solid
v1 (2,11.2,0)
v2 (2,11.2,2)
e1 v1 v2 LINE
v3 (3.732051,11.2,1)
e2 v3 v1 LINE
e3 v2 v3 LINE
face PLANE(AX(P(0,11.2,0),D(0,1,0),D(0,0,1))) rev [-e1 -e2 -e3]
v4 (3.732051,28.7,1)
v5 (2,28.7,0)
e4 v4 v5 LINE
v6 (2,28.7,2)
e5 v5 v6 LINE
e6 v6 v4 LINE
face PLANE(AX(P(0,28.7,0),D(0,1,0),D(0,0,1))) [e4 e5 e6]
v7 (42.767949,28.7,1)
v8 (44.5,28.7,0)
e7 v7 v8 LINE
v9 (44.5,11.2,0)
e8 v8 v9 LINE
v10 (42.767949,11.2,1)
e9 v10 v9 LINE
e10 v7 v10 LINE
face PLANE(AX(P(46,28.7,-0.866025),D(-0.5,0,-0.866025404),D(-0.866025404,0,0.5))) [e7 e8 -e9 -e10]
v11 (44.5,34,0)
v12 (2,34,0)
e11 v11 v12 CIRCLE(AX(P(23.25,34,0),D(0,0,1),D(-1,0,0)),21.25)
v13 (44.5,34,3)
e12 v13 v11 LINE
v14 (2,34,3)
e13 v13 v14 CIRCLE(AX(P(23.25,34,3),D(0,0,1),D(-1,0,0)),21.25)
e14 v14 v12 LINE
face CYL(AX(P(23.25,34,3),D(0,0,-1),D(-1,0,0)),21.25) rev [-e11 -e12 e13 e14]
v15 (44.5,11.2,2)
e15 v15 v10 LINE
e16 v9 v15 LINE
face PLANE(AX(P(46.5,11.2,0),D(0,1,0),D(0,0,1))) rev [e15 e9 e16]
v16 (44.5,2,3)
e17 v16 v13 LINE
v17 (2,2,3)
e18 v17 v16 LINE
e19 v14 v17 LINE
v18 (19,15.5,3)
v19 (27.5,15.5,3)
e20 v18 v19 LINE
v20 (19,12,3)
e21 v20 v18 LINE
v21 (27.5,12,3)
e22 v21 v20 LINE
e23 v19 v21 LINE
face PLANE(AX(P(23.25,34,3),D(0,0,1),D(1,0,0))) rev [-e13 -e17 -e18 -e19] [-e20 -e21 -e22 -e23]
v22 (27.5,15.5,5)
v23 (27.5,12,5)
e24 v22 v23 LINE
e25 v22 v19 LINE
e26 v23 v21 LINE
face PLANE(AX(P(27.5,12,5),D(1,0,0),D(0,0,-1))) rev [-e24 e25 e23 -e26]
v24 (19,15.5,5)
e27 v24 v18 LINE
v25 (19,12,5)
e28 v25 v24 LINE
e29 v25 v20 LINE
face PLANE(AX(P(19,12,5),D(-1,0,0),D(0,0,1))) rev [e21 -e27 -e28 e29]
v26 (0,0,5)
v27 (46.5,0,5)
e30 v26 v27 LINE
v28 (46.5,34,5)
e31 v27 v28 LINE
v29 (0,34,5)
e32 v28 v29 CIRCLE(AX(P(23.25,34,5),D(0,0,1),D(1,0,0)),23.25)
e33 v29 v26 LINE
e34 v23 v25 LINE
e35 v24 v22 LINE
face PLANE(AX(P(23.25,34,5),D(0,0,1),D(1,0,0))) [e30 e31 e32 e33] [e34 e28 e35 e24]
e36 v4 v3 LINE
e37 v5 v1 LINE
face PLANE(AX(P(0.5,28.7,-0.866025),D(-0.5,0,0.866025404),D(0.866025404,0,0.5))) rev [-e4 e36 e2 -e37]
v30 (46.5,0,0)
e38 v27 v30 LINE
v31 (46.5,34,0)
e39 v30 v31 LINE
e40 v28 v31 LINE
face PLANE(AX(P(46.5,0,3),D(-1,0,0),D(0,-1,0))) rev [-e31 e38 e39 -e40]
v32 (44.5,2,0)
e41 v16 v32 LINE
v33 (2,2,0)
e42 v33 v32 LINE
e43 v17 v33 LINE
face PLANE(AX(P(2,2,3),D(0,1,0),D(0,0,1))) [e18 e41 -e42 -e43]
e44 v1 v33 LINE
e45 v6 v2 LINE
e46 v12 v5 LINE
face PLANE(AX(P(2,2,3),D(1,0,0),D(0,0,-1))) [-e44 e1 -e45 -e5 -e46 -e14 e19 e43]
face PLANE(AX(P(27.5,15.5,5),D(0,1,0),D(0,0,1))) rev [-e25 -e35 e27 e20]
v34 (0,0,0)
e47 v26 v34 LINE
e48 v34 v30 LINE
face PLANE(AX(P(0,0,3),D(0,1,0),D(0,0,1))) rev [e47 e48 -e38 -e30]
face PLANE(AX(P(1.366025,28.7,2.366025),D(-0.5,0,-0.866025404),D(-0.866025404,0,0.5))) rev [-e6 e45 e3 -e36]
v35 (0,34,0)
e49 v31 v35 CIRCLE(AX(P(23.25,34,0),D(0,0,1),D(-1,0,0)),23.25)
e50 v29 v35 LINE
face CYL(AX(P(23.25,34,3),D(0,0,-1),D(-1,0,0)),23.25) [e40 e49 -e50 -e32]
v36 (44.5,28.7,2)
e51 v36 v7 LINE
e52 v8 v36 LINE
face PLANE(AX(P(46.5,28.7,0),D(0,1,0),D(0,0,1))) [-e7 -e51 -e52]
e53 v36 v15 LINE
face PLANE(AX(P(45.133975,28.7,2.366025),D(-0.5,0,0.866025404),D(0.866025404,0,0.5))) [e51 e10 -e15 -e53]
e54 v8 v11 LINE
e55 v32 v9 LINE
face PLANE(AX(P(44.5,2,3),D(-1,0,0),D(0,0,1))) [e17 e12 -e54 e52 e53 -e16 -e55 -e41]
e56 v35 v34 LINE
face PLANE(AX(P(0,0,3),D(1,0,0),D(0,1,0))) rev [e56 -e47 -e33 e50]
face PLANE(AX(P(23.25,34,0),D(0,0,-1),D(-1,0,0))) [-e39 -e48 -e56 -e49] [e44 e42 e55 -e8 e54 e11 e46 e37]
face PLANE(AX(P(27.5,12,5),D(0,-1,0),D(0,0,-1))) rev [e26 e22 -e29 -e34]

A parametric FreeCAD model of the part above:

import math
import FreeCAD as App
import Part
import Sketcher
from FreeCAD import Vector
Q = App.Units.Quantity


def add_polygon(sketch, points):
    """Adds a closed chain of lines whose ends are joined by coincident constraints."""
    first, n = sketch.GeometryCount, len(points)
    for a, b in zip(points, points[1:] + points[:1]):
        sketch.addGeometry(Part.LineSegment(App.Vector(*a, 0), App.Vector(*b, 0)), False)
    for i in range(n):
        sketch.addConstraint(Sketcher.Constraint("Coincident", first + i, 2, first + (i + 1) % n, 1))

doc = App.newDocument("Part")
body = doc.addObject("PartDesign::Body", "Body")

# Sketch on XY plane
sketch1 = body.newObject("Sketcher::SketchObject", "Sketch")
sketch1.AttachmentSupport = (doc.getObject("XY_Plane"), [""])
sketch1.MapMode = "FlatFace"
sketch1.addGeometry([
    Part.LineSegment(Vector(0, 0, 0), Vector(46, 0, 0)),  # 0
    Part.LineSegment(Vector(46, 0, 0), Vector(46, 34, 0)),  # 1
    Part.ArcOfCircle(Part.Circle(Vector(23, 34, 0), Vector(0, 0, 1), 23), math.radians(0), math.radians(180)),  # 2
    Part.LineSegment(Vector(0, 34, 0), Vector(0, 0, 0)),  # 3
    Part.LineSegment(Vector(44, 2, 0), Vector(2, 2, 0)),  # 4
    Part.LineSegment(Vector(2, 2, 0), Vector(2, 34, 0)),  # 5
    Part.ArcOfCircle(Part.Circle(Vector(23, 34, 0), Vector(0, 0, 1), 21), math.radians(0), math.radians(180)),  # 6
    Part.LineSegment(Vector(44, 34, 0), Vector(44, 2, 0)),  # 7
], False)
sketch1.addConstraint([
    Sketcher.Constraint("Coincident", 0, 2, 1, 1),
    Sketcher.Constraint("Tangent", 1, 2, 2, 1),
    Sketcher.Constraint("Tangent", 2, 2, 3, 1),
    Sketcher.Constraint("Coincident", 3, 2, 0, 1),
    Sketcher.Constraint("Coincident", 4, 2, 5, 1),
    Sketcher.Constraint("Tangent", 5, 2, 6, 2),
    Sketcher.Constraint("Tangent", 6, 1, 7, 1),
    Sketcher.Constraint("Coincident", 7, 2, 4, 1),
    Sketcher.Constraint("Horizontal", 0),
    Sketcher.Constraint("Vertical", 1),
    Sketcher.Constraint("Vertical", 3),
    Sketcher.Constraint("Horizontal", 4),
    Sketcher.Constraint("Vertical", 5),
    Sketcher.Constraint("Vertical", 7),
    Sketcher.Constraint("Coincident", 3, 2, -1, 1),
    Sketcher.Constraint("Coincident", 6, 3, 2, 3),
    Sketcher.Constraint("DistanceY", 1, 1, 1, 2, Q("34 mm")),
    Sketcher.Constraint("DistanceY", 5, 1, 5, 2, Q("32 mm")),
    Sketcher.Constraint("Radius", 2, Q("23.25 mm")),
    Sketcher.Constraint("Radius", 6, Q("21.25 mm")),
])
pad1 = body.newObject("PartDesign::Pad", "Pad")
pad1.Profile = sketch1
pad1.Length = 3

# Sketch on XY plane
sketch2 = body.newObject("Sketcher::SketchObject", "Sketch001")
sketch2.AttachmentSupport = (doc.getObject("XY_Plane"), [""])
sketch2.MapMode = "FlatFace"
sketch2.AttachmentOffset = App.Placement(Vector(0, 0, 3), App.Rotation())
sketch2.addGeometry([
    Part.LineSegment(Vector(0, 34, 0), Vector(0, 0, 0)),
    Part.LineSegment(Vector(0, 0, 0), Vector(46, 0, 0)),
    Part.LineSegment(Vector(46, 0, 0), Vector(46, 34, 0)),
    Part.ArcOfCircle(Part.Circle(Vector(23, 34, 0), Vector(0, 0, 1), 23), math.radians(0), math.radians(180)),
], False)
sketch2.addConstraint([
    Sketcher.Constraint("Coincident", 0, 2, 1, 1),
    Sketcher.Constraint("Coincident", 1, 2, 2, 1),
    Sketcher.Constraint("Tangent", 2, 2, 3, 1),
    Sketcher.Constraint("Tangent", 3, 2, 0, 1),
    Sketcher.Constraint("Vertical", 0),
    Sketcher.Constraint("Horizontal", 1),
    Sketcher.Constraint("Vertical", 2),
    Sketcher.Constraint("Coincident", 0, 2, -1, 1),
    Sketcher.Constraint("DistanceY", 0, 2, 0, 1, Q("34 mm")),
    Sketcher.Constraint("Radius", 3, Q("23.25 mm")),
])
pad2 = body.newObject("PartDesign::Pad", "Pad001")
pad2.Profile = sketch2
pad2.Length = 2

# Sketch on XZ plane
sketch3 = body.newObject("Sketcher::SketchObject", "Sketch002")
sketch3.AttachmentSupport = (doc.getObject("XZ_Plane"), [""])
sketch3.MapMode = "FlatFace"
sketch3.AttachmentOffset = App.Placement(Vector(0, 0, -11.2), App.Rotation())
add_polygon(sketch3, [(2, 2), (3.7, 1), (2, 0)])  # lines 0-2
sketch3.addConstraint([
    Sketcher.Constraint("Vertical", 2),
    Sketcher.Constraint("PointOnObject", 1, 2, -1),
    Sketcher.Constraint("Equal", 0, 1),
    Sketcher.Constraint("DistanceY", 2, 1, 2, 2, Q("2 mm")),
    Sketcher.Constraint("Angle", 0, Q("-30 deg")),
    Sketcher.Constraint("DistanceX", -1, 1, 1, 2, Q("2 mm")),
])
pad3 = body.newObject("PartDesign::Pad", "Pad002")
pad3.Profile = sketch3
pad3.Length = 17.5
pad3.Reversed = True
doc.recompute()

datumplane = body.newObject("PartDesign::Plane", "DatumPlane")
datumplane.AttachmentSupport = (doc.getObject("YZ_Plane"), [""])
datumplane.MapMode = "FlatFace"
datumplane.AttachmentOffset = App.Placement(Vector(0, 0, 23.25), App.Rotation())
mirrored = body.newObject("PartDesign::Mirrored", "Mirrored")
mirrored.Originals = [pad3]
mirrored.MirrorPlane = (datumplane, [""])
body.Tip = mirrored

# Sketch on XY plane
sketch4 = body.newObject("Sketcher::SketchObject", "Sketch003")
sketch4.AttachmentSupport = (doc.getObject("XY_Plane"), [""])
sketch4.MapMode = "FlatFace"
sketch4.AttachmentOffset = App.Placement(Vector(0, 0, 3), App.Rotation())
add_polygon(sketch4, [(27.5, 15.5), (27.5, 12), (19, 12), (19, 15.5)])  # lines 0-3
sketch4.addConstraint([
    Sketcher.Constraint("Vertical", 0),
    Sketcher.Constraint("Horizontal", 1),
    Sketcher.Constraint("Vertical", 2),
    Sketcher.Constraint("Horizontal", 3),
    Sketcher.Constraint("DistanceX", 1, 2, 1, 1, Q("8.5 mm")),
    Sketcher.Constraint("DistanceY", 0, 2, 0, 1, Q("3.5 mm")),
    Sketcher.Constraint("DistanceY", -1, 1, 0, 2, Q("12 mm")),
    Sketcher.Constraint("DistanceX", -1, 1, 1, 2, Q("19 mm")),
])
pocket1 = body.newObject("PartDesign::Pocket", "Pocket")
pocket1.Profile = sketch4
pocket1.Type = "ThroughAll"
pocket1.Reversed = True

doc.recompute()
